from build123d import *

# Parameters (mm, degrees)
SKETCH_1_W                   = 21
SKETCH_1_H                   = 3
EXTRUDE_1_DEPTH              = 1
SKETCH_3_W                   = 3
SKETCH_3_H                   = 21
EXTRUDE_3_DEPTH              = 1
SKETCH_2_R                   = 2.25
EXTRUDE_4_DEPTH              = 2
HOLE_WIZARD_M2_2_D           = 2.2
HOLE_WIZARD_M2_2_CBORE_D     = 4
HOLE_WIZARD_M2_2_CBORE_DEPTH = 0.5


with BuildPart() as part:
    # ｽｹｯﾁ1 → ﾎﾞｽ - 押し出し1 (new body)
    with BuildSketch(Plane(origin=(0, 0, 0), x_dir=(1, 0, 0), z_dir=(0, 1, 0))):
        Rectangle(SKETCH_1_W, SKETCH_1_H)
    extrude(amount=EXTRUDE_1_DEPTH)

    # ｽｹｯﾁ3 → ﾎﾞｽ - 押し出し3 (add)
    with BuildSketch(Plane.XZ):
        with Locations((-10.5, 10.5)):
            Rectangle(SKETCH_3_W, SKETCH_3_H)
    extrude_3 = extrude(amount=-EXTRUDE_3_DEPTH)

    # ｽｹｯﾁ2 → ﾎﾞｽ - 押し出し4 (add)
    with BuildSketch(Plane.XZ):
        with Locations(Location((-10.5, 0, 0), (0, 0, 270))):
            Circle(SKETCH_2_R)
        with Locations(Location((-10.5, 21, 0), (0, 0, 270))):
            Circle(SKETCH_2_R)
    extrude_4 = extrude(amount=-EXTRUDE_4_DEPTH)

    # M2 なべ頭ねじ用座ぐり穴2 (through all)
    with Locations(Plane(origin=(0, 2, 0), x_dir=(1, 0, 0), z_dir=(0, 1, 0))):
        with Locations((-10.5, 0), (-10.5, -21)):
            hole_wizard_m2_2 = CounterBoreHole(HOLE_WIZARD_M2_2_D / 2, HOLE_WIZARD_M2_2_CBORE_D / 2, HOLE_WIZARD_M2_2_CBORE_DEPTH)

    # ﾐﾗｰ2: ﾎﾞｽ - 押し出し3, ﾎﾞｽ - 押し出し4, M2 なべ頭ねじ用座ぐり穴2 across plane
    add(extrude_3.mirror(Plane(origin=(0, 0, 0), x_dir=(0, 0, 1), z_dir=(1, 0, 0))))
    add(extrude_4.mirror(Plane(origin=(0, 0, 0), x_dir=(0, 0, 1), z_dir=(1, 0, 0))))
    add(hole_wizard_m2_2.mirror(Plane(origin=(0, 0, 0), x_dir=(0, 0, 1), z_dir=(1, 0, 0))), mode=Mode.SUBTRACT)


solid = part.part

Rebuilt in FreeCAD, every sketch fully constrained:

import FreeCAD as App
import Part
import Sketcher
Q = App.Units.Quantity


def add_polygon(sketch, points):
    """Adds a closed chain of lines whose ends are joined by coincident constraints."""
    first, n = sketch.GeometryCount, len(points)
    for a, b in zip(points, points[1:] + points[:1]):
        sketch.addGeometry(Part.LineSegment(App.Vector(*a, 0), App.Vector(*b, 0)), False)
    for i in range(n):
        sketch.addConstraint(Sketcher.Constraint("Coincident", first + i, 2, first + (i + 1) % n, 1))

doc = App.newDocument("Part")
body = doc.addObject("PartDesign::Body", "Body")

# Sketch on XZ plane
sketch1 = body.newObject("Sketcher::SketchObject", "Sketch")
sketch1.AttachmentSupport = (doc.getObject("XZ_Plane"), [""])
sketch1.MapMode = "FlatFace"
add_polygon(sketch1, [(-10.5, -1.5), (-10.5, 1.5), (10.5, 1.5), (10.5, -1.5)])  # lines 0-3
sketch1.addConstraint([
    Sketcher.Constraint("Vertical", 0),
    Sketcher.Constraint("Horizontal", 1),
    Sketcher.Constraint("Vertical", 2),
    Sketcher.Constraint("Horizontal", 3),
    Sketcher.Constraint("Symmetric", 0, 2, 2, 2, -1, 1),
    Sketcher.Constraint("DistanceX", 1, 1, 1, 2, Q("21 mm")),
    Sketcher.Constraint("DistanceY", 0, 1, 0, 2, Q("3 mm")),
])
pad1 = body.newObject("PartDesign::Pad", "Pad")
pad1.Profile = sketch1
pad1.Length = 1
pad1.Reversed = True

# Sketch on XZ plane
sketch2 = body.newObject("Sketcher::SketchObject", "Sketch001")
sketch2.AttachmentSupport = (doc.getObject("XZ_Plane"), [""])
sketch2.MapMode = "FlatFace"
add_polygon(sketch2, [(-12, 21), (-12, 0), (-9, 0), (-9, 21)])  # lines 0-3
sketch2.addConstraint([
    Sketcher.Constraint("Vertical", 0),
    Sketcher.Constraint("Horizontal", 1),
    Sketcher.Constraint("Vertical", 2),
    Sketcher.Constraint("Horizontal", 3),
    Sketcher.Constraint("PointOnObject", 0, 2, -1),
    Sketcher.Constraint("DistanceX", 1, 1, 1, 2, Q("3 mm")),
    Sketcher.Constraint("DistanceY", 0, 2, 0, 1, Q("21 mm")),
    Sketcher.Constraint("DistanceX", 0, 2, -1, 1, Q("12 mm")),
])
pad2 = body.newObject("PartDesign::Pad", "Pad001")
pad2.Profile = sketch2
pad2.Length = 1
pad2.Reversed = True

# Sketch on XZ plane
sketch3 = body.newObject("Sketcher::SketchObject", "Sketch002")
sketch3.AttachmentSupport = (doc.getObject("XZ_Plane"), [""])
sketch3.MapMode = "FlatFace"
sketch3.addGeometry([
    Part.Circle(App.Vector(-10.5, 0, 0), App.Vector(0, 0, 1), 2.2),
    Part.Circle(App.Vector(-10.5, 21, 0), App.Vector(0, 0, 1), 2.2),
], False)
sketch3.addConstraint([
    Sketcher.Constraint("Equal", 0, 1),
    Sketcher.Constraint("PointOnObject", 0, 3, -1),
    Sketcher.Constraint("Vertical", 0, 3, 1, 3),
    Sketcher.Constraint("Diameter", 0, Q("4.5 mm")),
    Sketcher.Constraint("DistanceY", -1, 1, 1, 3, Q("21 mm")),
    Sketcher.Constraint("DistanceX", 0, 3, -1, 1, Q("10.5 mm")),
])
pad3 = body.newObject("PartDesign::Pad", "Pad002")
pad3.Profile = sketch3
pad3.Length = 2
pad3.Reversed = True

# Sketch on XZ plane
sketch4 = body.newObject("Sketcher::SketchObject", "Sketch003")
sketch4.AttachmentSupport = (doc.getObject("XZ_Plane"), [""])
sketch4.MapMode = "FlatFace"
sketch4.AttachmentOffset = App.Placement(App.Vector(0, 0, -2), App.Rotation())
sketch4.addGeometry([
    Part.Circle(App.Vector(-10.5, 0, 0), App.Vector(0, 0, 1), 1.1),
    Part.Circle(App.Vector(-10.5, 21, 0), App.Vector(0, 0, 1), 1.1),
], False)
sketch4.addConstraint([
    Sketcher.Constraint("Equal", 0, 1),
    Sketcher.Constraint("PointOnObject", 0, 3, -1),
    Sketcher.Constraint("Vertical", 0, 3, 1, 3),
    Sketcher.Constraint("Diameter", 0, Q("2.2 mm")),
    Sketcher.Constraint("DistanceY", -1, 1, 1, 3, Q("21 mm")),
    Sketcher.Constraint("DistanceX", 0, 3, -1, 1, Q("10.5 mm")),
])
doc.recompute()
hole = body.newObject("PartDesign::Hole", "Hole")
hole.Profile = sketch4
hole.ThreadType = "None"
hole.Diameter = 2.2
hole.DepthType = "ThroughAll"
hole.HoleCutType = "Counterbore"
hole.HoleCutDiameter = 4
hole.HoleCutDepth = 0.5
hole.Reversed = True
doc.recompute()

mirrored = body.newObject("PartDesign::Mirrored", "Mirrored")
mirrored.Originals = [pad2, pad3, hole]
mirrored.MirrorPlane = (doc.getObject("YZ_Plane"), [""])
body.Tip = mirrored

doc.recompute()
